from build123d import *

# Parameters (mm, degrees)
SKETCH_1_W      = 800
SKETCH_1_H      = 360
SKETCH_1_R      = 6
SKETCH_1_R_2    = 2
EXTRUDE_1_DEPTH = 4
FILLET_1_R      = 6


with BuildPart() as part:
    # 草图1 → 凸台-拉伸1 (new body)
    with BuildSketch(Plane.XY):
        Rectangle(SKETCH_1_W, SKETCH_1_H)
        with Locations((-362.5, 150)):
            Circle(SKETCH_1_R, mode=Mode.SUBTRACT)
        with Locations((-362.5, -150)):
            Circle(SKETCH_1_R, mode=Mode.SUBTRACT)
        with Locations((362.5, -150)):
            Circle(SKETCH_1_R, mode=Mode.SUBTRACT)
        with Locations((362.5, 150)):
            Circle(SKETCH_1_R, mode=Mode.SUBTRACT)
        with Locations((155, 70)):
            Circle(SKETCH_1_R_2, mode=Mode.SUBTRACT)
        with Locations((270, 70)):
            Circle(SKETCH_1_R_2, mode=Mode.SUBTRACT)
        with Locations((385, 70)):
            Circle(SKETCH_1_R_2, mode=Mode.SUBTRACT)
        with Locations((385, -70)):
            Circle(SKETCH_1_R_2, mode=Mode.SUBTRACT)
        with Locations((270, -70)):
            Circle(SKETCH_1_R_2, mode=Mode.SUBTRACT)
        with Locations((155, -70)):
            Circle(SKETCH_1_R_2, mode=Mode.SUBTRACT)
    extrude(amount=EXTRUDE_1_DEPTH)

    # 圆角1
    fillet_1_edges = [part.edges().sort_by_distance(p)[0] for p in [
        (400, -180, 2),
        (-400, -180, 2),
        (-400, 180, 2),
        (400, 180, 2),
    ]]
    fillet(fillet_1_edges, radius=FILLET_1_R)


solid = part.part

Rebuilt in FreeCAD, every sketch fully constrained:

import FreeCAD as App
import Part
import Sketcher


def edges_at(feature, points):
    """Names of the edges that pass closest to the given points."""
    edges = feature.Shape.Edges
    near = lambda p: min(range(len(edges)), key=lambda i: edges[i].distToShape(Part.Vertex(*p))[0])
    return sorted({f"Edge{near(p) + 1}" for p in points})


def add_polygon(sketch, points):
    """Adds a closed chain of lines whose ends are joined by coincident constraints."""
    first, n = sketch.GeometryCount, len(points)
    for a, b in zip(points, points[1:] + points[:1]):
        sketch.addGeometry(Part.LineSegment(App.Vector(*a, 0), App.Vector(*b, 0)), False)
    for i in range(n):
        sketch.addConstraint(Sketcher.Constraint("Coincident", first + i, 2, first + (i + 1) % n, 1))

doc = App.newDocument("Part")
body = doc.addObject("PartDesign::Body", "Body")

# Sketch on XY plane
sketch1 = body.newObject("Sketcher::SketchObject", "Sketch")
sketch1.AttachmentSupport = (doc.getObject("XY_Plane"), [""])
sketch1.MapMode = "FlatFace"
add_polygon(sketch1, [(-400, 180), (-400, -180), (400, -180), (400, 180)])  # lines 0-3
sketch1.addGeometry(Part.Circle(App.Vector(-362.5, -150, 0), App.Vector(0, 0, 1), 6), False)  # 4
sketch1.addGeometry(Part.Circle(App.Vector(362.5, -150, 0), App.Vector(0, 0, 1), 6), False)  # 5
sketch1.addGeometry(Part.Circle(App.Vector(155, -70, 0), App.Vector(0, 0, 1), 2), False)  # 6
sketch1.addGeometry(Part.Circle(App.Vector(270, -70, 0), App.Vector(0, 0, 1), 2), False)  # 7
sketch1.addGeometry(Part.Circle(App.Vector(385, -70, 0), App.Vector(0, 0, 1), 2), False)  # 8
sketch1.addGeometry(Part.Circle(App.Vector(-362.5, 150, 0), App.Vector(0, 0, 1), 6), False)  # 9
sketch1.addGeometry(Part.Circle(App.Vector(155, 70, 0), App.Vector(0, 0, 1), 2), False)  # 10
sketch1.addGeometry(Part.Circle(App.Vector(270, 70, 0), App.Vector(0, 0, 1), 2), False)  # 11
sketch1.addGeometry(Part.Circle(App.Vector(385, 70, 0), App.Vector(0, 0, 1), 2), False)  # 12
sketch1.addGeometry(Part.Circle(App.Vector(362.5, 150, 0), App.Vector(0, 0, 1), 6), False)  # 13
sketch1.addConstraint([
    Sketcher.Constraint("Vertical", 0),
    Sketcher.Constraint("Horizontal", 1),
    Sketcher.Constraint("Vertical", 2),
    Sketcher.Constraint("Horizontal", 3),
    Sketcher.Constraint("Equal", 4, 5),
    Sketcher.Constraint("Equal", 6, 7),
    Sketcher.Constraint("Equal", 7, 8),
    Sketcher.Constraint("Equal", 5, 9),
    Sketcher.Constraint("Equal", 8, 10),
    Sketcher.Constraint("Equal", 10, 11),
    Sketcher.Constraint("Equal", 11, 12),
    Sketcher.Constraint("Equal", 9, 13),
    Sketcher.Constraint("Symmetric", 5, 3, 9, 3, -1, 1),
    Sketcher.Constraint("Symmetric", 4, 3, 13, 3, -1, 1),
    Sketcher.Constraint("Symmetric", 0, 2, 2, 2, -1, 1),
    Sketcher.Constraint("Symmetric", 4, 3, 5, 3, -2),
    Sketcher.Constraint("Symmetric", 6, 3, 10, 3, -1),
    Sketcher.Constraint("Symmetric", 7, 3, 11, 3, -1),
    Sketcher.Constraint("Symmetric", 8, 3, 12, 3, -1),
    Sketcher.Constraint("Horizontal", 6, 3, 7, 3),
    Sketcher.Constraint("Horizontal", 7, 3, 8, 3),
    Sketcher.Constraint("Diameter", 4, 12.0),
    Sketcher.Constraint("Diameter", 6, 4.0),
    Sketcher.Constraint("DistanceX", 1, 1, 1, 2, 800.0),
    Sketcher.Constraint("DistanceY", 0, 2, 0, 1, 360.0),
    Sketcher.Constraint("DistanceY", 4, 3, -1, 1, 150.0),
    Sketcher.Constraint("DistanceX", -1, 1, 6, 3, 155.0),
    Sketcher.Constraint("DistanceY", 6, 3, -1, 1, 70.0),
    Sketcher.Constraint("DistanceX", -1, 1, 7, 3, 270.0),
    Sketcher.Constraint("DistanceX", -1, 1, 8, 3, 385.0),
    Sketcher.Constraint("DistanceX", 4, 3, 5, 3, 725.0),
])
pad1 = body.newObject("PartDesign::Pad", "Pad")
pad1.Profile = sketch1
pad1.Length = 4
doc.recompute()

fillet = body.newObject("PartDesign::Fillet", "Fillet")
fillet.Base = (pad1, edges_at(pad1, [
    (400, -180, 2),
    (-400, -180, 2),
    (-400, 180, 2),
    (400, 180, 2),
]))
fillet.Radius = 6

doc.recompute()
